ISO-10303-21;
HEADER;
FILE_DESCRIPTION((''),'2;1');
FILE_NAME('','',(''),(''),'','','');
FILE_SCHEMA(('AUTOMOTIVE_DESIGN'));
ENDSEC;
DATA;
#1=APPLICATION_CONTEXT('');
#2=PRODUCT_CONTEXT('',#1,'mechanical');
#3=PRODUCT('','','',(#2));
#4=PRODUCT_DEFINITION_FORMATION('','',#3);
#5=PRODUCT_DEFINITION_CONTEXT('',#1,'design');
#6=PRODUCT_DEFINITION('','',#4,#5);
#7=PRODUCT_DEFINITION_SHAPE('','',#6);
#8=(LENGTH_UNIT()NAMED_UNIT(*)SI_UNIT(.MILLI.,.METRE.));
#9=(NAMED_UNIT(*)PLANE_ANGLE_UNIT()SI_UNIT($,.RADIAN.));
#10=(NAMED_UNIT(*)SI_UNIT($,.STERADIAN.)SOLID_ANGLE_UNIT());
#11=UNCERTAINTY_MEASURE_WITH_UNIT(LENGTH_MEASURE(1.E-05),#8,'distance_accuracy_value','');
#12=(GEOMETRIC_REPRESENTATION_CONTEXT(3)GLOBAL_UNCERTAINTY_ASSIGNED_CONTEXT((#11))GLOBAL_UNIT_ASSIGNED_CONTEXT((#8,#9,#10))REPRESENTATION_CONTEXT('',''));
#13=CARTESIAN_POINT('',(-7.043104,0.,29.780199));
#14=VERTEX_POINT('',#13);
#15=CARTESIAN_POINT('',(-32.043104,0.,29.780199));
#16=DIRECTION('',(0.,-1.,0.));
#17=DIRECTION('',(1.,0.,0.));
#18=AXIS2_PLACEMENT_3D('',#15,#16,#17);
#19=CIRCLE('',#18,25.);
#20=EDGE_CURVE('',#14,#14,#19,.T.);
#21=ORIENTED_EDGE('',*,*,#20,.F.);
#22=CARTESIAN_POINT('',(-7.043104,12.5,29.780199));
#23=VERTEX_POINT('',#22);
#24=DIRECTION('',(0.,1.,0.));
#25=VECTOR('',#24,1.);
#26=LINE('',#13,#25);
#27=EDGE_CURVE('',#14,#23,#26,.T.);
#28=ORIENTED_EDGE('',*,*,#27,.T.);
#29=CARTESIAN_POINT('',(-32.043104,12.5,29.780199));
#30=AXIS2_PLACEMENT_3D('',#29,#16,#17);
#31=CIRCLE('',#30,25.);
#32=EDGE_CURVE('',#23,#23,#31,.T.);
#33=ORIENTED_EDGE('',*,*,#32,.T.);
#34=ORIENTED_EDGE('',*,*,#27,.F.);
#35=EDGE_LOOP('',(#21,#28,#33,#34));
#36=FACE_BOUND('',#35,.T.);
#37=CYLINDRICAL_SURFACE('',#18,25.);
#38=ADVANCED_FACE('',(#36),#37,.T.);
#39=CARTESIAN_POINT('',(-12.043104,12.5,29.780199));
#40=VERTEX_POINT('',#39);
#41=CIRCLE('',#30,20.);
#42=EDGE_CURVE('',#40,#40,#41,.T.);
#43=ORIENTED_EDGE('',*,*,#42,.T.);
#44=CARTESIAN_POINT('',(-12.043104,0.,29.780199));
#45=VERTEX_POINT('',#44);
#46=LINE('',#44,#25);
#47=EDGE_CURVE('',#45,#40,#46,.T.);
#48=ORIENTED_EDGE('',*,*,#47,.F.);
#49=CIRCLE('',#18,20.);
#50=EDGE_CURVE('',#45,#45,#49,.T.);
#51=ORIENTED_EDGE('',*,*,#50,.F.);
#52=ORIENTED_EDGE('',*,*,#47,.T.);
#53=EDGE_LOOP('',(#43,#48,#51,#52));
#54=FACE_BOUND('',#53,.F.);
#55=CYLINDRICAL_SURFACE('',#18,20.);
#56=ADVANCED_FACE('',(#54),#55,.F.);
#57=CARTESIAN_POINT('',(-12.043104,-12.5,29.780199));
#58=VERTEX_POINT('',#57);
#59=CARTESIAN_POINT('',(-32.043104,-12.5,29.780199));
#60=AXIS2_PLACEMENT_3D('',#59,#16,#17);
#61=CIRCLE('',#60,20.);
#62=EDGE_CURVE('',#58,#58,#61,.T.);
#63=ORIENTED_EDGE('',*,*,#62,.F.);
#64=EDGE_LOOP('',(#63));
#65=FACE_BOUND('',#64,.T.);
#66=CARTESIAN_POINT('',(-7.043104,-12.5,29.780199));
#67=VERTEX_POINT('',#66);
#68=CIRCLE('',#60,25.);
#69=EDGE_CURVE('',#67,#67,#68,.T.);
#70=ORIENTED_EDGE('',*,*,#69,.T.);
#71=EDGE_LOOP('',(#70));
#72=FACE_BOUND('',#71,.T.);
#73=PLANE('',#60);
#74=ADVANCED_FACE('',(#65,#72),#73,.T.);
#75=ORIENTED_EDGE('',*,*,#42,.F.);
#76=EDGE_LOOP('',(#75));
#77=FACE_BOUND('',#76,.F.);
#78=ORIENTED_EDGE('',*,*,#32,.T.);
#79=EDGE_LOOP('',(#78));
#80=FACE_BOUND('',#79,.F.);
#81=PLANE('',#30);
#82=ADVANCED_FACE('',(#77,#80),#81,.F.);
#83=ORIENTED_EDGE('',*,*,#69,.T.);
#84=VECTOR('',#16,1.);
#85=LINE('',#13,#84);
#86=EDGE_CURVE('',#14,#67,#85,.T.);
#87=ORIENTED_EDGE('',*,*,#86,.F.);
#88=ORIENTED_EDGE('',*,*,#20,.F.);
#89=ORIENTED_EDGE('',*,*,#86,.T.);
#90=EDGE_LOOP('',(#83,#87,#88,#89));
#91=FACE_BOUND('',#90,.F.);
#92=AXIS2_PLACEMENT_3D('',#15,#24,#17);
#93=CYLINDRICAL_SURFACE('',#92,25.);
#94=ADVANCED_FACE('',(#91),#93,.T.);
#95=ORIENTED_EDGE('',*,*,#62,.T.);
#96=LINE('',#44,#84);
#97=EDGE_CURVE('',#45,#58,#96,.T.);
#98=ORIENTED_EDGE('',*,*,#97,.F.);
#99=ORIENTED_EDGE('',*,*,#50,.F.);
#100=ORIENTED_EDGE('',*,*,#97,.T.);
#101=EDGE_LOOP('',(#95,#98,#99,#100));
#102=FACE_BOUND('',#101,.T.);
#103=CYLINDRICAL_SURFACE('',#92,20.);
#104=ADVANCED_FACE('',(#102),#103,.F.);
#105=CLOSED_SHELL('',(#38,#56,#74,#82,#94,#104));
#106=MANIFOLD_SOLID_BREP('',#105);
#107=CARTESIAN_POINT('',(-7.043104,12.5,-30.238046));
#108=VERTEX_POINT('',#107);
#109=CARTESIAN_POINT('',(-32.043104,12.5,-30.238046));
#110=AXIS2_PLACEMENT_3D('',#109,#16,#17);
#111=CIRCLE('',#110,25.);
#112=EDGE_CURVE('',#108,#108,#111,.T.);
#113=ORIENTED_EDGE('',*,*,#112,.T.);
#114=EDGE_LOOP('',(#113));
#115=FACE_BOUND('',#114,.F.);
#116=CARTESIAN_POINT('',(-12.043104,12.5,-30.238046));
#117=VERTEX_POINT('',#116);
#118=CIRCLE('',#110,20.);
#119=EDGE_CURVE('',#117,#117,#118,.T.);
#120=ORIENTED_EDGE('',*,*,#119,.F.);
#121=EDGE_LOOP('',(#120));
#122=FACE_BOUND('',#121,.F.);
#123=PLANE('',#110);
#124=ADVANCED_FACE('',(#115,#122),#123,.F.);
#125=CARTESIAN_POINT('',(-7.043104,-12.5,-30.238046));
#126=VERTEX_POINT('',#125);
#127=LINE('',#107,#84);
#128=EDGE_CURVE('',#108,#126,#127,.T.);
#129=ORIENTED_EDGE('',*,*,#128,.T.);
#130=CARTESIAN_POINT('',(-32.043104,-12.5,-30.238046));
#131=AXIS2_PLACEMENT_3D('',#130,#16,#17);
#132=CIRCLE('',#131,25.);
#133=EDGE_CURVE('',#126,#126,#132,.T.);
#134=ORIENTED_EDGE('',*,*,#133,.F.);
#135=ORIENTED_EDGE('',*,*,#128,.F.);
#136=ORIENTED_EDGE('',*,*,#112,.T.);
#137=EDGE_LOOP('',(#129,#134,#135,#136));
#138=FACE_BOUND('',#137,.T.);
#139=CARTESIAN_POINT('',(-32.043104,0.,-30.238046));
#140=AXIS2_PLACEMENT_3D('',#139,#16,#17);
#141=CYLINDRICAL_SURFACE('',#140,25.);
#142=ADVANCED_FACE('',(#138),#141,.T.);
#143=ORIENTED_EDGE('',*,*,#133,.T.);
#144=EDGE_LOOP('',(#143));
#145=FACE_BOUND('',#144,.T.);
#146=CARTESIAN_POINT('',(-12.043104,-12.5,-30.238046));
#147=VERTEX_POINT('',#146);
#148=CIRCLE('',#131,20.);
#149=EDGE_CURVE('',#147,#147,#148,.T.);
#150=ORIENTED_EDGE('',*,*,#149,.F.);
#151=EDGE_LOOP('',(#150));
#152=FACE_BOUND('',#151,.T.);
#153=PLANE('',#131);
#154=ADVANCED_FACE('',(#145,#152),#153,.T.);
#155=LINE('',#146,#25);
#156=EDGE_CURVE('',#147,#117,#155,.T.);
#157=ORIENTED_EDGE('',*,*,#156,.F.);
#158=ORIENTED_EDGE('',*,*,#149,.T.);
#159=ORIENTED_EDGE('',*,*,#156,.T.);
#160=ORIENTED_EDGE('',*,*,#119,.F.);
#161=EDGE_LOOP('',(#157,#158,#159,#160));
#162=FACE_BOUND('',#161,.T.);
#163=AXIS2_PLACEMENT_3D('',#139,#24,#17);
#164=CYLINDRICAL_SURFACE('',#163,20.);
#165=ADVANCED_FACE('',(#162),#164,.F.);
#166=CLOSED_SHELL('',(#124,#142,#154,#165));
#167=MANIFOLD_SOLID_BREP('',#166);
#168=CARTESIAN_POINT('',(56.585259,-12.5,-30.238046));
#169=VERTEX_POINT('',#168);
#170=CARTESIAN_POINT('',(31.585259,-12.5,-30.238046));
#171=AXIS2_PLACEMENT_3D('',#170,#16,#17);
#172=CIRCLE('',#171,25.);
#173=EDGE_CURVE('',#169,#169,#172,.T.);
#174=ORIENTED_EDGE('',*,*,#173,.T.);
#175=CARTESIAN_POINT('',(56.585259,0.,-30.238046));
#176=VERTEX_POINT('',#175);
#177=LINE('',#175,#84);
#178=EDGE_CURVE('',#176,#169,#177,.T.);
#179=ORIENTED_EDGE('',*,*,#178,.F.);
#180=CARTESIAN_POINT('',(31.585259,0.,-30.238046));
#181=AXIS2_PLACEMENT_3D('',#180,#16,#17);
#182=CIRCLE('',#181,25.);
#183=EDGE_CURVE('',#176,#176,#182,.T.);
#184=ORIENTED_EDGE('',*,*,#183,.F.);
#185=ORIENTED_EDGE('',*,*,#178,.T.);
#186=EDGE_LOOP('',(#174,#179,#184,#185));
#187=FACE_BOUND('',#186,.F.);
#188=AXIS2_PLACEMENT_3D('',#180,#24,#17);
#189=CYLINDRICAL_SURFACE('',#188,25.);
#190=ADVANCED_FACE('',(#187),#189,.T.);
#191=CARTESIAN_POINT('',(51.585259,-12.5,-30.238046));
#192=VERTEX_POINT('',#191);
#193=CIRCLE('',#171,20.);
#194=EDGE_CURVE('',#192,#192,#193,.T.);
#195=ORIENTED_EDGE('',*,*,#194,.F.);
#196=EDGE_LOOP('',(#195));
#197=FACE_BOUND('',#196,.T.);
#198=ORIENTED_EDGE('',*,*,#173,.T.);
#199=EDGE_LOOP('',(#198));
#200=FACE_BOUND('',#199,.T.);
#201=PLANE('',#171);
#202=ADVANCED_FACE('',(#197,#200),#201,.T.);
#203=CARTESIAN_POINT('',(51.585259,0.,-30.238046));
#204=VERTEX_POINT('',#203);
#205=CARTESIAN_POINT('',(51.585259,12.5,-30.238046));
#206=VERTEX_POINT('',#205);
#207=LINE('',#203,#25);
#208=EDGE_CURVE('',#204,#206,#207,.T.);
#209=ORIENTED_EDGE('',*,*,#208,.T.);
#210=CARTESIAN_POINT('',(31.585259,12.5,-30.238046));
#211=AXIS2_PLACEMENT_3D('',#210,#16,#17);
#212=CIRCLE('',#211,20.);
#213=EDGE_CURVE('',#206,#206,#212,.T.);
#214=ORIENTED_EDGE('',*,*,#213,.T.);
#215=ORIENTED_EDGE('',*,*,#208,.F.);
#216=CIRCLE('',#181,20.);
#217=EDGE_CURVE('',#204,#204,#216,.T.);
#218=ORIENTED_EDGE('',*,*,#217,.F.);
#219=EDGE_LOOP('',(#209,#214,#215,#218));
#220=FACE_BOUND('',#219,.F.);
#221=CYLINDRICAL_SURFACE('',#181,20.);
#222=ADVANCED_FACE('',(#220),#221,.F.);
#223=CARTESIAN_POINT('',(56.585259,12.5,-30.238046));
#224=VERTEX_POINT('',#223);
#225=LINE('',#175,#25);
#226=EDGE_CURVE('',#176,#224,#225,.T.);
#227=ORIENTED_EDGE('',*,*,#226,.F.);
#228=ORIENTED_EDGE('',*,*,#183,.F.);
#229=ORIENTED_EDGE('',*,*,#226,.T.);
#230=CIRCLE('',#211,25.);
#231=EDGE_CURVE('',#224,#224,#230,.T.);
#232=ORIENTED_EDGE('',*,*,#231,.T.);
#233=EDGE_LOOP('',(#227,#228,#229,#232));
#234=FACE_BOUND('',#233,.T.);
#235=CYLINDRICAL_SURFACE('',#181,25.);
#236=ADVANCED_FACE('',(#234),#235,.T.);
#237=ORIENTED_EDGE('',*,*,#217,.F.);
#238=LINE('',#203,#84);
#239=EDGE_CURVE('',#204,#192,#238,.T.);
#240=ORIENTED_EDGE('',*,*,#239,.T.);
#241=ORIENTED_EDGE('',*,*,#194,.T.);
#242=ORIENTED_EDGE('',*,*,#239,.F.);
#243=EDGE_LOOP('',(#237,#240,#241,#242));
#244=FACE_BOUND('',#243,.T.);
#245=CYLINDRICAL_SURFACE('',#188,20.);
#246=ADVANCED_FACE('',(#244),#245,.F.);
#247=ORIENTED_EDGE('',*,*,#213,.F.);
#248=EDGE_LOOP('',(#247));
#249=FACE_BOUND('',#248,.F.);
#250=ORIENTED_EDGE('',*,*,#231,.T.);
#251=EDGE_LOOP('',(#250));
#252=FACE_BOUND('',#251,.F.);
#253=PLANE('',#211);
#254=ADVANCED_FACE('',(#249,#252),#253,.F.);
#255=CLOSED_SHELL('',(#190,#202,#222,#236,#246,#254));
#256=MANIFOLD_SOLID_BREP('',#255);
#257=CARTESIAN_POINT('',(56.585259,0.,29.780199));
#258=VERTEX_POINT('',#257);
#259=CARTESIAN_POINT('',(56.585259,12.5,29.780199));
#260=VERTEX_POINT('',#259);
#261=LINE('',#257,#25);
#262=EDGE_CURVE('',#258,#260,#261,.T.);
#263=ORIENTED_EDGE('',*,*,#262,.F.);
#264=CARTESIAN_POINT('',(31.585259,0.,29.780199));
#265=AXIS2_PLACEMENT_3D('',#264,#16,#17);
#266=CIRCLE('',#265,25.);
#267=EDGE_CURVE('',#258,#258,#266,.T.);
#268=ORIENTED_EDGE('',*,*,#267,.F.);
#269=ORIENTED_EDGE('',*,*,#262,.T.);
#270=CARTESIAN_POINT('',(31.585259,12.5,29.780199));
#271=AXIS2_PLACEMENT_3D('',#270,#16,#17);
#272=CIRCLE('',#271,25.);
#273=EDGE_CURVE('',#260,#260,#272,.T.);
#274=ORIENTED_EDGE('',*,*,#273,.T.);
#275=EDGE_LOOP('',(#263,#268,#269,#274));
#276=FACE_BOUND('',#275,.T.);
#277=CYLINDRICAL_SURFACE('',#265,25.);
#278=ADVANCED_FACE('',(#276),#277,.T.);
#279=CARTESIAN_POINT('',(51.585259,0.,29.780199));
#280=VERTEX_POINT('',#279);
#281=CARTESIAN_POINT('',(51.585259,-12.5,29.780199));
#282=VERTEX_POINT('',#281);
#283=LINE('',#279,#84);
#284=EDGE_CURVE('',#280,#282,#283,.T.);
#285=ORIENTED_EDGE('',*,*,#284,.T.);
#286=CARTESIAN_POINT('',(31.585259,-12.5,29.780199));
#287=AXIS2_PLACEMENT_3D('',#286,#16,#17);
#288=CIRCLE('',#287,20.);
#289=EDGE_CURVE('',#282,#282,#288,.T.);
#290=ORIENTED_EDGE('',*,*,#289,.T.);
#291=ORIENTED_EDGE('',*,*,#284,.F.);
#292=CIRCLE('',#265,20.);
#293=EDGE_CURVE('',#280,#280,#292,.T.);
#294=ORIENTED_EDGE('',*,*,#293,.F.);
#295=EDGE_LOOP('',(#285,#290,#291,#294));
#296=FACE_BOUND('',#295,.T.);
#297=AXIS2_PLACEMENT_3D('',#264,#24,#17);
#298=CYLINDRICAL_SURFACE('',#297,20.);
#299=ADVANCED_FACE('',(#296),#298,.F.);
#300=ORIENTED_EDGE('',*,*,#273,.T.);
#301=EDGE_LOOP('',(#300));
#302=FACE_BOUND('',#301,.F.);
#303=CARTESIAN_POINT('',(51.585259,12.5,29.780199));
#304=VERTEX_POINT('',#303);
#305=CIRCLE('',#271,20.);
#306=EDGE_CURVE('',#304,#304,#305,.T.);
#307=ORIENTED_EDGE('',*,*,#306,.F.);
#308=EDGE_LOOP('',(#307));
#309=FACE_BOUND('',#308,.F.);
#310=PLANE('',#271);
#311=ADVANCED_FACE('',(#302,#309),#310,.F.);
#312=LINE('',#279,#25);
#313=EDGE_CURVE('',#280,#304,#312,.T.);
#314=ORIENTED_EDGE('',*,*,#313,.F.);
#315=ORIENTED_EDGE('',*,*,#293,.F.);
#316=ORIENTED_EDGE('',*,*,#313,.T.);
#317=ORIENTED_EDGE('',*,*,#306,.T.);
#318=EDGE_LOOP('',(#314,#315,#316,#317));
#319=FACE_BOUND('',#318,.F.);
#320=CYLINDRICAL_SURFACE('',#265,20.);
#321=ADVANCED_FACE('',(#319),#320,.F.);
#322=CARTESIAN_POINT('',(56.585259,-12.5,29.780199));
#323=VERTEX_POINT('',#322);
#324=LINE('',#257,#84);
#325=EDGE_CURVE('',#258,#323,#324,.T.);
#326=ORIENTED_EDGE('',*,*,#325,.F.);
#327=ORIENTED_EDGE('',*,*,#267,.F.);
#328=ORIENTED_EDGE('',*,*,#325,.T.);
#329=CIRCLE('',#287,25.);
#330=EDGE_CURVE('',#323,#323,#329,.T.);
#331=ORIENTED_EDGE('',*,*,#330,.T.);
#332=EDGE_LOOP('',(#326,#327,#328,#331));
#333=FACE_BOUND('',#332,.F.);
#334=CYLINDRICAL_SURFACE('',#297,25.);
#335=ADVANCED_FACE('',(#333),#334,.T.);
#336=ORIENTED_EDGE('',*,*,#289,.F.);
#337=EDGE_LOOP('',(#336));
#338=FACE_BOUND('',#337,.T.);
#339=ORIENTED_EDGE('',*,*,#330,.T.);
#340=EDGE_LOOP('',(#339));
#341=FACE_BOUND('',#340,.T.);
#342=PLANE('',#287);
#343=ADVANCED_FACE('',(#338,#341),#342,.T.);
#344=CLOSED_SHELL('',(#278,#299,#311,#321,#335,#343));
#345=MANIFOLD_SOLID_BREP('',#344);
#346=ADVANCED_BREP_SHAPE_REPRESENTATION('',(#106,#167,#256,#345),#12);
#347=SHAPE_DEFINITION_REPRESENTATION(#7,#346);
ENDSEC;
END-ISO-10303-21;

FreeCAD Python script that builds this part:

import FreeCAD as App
import Part
import Sketcher
from FreeCAD import Vector

doc = App.newDocument("Part")
body = doc.addObject("PartDesign::Body", "Body")
body.AllowCompound = True

sketch1 = body.newObject("Sketcher::SketchObject", "Sketch")
sketch1.AttachmentSupport = (doc.getObject("XZ_Plane"), [""])
sketch1.MapMode = "FlatFace"
sketch1.addGeometry([
    Part.Circle(Vector(-32, 30, 0), Vector(0, 0, 1), 25),
    Part.Circle(Vector(-32, 30, 0), Vector(0, 0, 1), 20),
    Part.Circle(Vector(32, 30, 0), Vector(0, 0, 1), 25),
    Part.Circle(Vector(32, 30, 0), Vector(0, 0, 1), 20),
    Part.Circle(Vector(32, -30, 0), Vector(0, 0, 1), 25),
    Part.Circle(Vector(32, -30, 0), Vector(0, 0, 1), 20),
    Part.Circle(Vector(-32, -30, 0), Vector(0, 0, 1), 25),
    Part.Circle(Vector(-32, -30, 0), Vector(0, 0, 1), 20),
], False)
sketch1.addConstraint([
    Sketcher.Constraint("Coincident", 1, 3, 0, 3),
    Sketcher.Constraint("Coincident", 3, 3, 2, 3),
    Sketcher.Constraint("Coincident", 5, 3, 4, 3),
    Sketcher.Constraint("Coincident", 7, 3, 6, 3),
    Sketcher.Constraint("Equal", 0, 2),
    Sketcher.Constraint("Equal", 1, 3),
    Sketcher.Constraint("Equal", 2, 4),
    Sketcher.Constraint("Equal", 3, 5),
    Sketcher.Constraint("Equal", 4, 6),
    Sketcher.Constraint("Equal", 5, 7),
    Sketcher.Constraint("Horizontal", 1, 3, 2, 3),
    Sketcher.Constraint("Horizontal", 5, 3, 6, 3),
    Sketcher.Constraint("Vertical", 3, 3, 4, 3),
    Sketcher.Constraint("Vertical", 1, 3, 6, 3),
    Sketcher.Constraint("Diameter", 0, 50.0),
    Sketcher.Constraint("Diameter", 1, 40.0),
    Sketcher.Constraint("DistanceY", -1, 1, 0, 3, 29.780199),
    Sketcher.Constraint("DistanceX", -1, 1, 2, 3, 31.585259),
    Sketcher.Constraint("DistanceX", 0, 3, -1, 1, 32.043104),
    Sketcher.Constraint("DistanceY", 4, 3, -1, 1, 30.238046),
])
pad1 = body.newObject("PartDesign::Pad", "Pad")
pad1.Profile = sketch1
pad1.Length = 25
pad1.Midplane = True

doc.recompute()
